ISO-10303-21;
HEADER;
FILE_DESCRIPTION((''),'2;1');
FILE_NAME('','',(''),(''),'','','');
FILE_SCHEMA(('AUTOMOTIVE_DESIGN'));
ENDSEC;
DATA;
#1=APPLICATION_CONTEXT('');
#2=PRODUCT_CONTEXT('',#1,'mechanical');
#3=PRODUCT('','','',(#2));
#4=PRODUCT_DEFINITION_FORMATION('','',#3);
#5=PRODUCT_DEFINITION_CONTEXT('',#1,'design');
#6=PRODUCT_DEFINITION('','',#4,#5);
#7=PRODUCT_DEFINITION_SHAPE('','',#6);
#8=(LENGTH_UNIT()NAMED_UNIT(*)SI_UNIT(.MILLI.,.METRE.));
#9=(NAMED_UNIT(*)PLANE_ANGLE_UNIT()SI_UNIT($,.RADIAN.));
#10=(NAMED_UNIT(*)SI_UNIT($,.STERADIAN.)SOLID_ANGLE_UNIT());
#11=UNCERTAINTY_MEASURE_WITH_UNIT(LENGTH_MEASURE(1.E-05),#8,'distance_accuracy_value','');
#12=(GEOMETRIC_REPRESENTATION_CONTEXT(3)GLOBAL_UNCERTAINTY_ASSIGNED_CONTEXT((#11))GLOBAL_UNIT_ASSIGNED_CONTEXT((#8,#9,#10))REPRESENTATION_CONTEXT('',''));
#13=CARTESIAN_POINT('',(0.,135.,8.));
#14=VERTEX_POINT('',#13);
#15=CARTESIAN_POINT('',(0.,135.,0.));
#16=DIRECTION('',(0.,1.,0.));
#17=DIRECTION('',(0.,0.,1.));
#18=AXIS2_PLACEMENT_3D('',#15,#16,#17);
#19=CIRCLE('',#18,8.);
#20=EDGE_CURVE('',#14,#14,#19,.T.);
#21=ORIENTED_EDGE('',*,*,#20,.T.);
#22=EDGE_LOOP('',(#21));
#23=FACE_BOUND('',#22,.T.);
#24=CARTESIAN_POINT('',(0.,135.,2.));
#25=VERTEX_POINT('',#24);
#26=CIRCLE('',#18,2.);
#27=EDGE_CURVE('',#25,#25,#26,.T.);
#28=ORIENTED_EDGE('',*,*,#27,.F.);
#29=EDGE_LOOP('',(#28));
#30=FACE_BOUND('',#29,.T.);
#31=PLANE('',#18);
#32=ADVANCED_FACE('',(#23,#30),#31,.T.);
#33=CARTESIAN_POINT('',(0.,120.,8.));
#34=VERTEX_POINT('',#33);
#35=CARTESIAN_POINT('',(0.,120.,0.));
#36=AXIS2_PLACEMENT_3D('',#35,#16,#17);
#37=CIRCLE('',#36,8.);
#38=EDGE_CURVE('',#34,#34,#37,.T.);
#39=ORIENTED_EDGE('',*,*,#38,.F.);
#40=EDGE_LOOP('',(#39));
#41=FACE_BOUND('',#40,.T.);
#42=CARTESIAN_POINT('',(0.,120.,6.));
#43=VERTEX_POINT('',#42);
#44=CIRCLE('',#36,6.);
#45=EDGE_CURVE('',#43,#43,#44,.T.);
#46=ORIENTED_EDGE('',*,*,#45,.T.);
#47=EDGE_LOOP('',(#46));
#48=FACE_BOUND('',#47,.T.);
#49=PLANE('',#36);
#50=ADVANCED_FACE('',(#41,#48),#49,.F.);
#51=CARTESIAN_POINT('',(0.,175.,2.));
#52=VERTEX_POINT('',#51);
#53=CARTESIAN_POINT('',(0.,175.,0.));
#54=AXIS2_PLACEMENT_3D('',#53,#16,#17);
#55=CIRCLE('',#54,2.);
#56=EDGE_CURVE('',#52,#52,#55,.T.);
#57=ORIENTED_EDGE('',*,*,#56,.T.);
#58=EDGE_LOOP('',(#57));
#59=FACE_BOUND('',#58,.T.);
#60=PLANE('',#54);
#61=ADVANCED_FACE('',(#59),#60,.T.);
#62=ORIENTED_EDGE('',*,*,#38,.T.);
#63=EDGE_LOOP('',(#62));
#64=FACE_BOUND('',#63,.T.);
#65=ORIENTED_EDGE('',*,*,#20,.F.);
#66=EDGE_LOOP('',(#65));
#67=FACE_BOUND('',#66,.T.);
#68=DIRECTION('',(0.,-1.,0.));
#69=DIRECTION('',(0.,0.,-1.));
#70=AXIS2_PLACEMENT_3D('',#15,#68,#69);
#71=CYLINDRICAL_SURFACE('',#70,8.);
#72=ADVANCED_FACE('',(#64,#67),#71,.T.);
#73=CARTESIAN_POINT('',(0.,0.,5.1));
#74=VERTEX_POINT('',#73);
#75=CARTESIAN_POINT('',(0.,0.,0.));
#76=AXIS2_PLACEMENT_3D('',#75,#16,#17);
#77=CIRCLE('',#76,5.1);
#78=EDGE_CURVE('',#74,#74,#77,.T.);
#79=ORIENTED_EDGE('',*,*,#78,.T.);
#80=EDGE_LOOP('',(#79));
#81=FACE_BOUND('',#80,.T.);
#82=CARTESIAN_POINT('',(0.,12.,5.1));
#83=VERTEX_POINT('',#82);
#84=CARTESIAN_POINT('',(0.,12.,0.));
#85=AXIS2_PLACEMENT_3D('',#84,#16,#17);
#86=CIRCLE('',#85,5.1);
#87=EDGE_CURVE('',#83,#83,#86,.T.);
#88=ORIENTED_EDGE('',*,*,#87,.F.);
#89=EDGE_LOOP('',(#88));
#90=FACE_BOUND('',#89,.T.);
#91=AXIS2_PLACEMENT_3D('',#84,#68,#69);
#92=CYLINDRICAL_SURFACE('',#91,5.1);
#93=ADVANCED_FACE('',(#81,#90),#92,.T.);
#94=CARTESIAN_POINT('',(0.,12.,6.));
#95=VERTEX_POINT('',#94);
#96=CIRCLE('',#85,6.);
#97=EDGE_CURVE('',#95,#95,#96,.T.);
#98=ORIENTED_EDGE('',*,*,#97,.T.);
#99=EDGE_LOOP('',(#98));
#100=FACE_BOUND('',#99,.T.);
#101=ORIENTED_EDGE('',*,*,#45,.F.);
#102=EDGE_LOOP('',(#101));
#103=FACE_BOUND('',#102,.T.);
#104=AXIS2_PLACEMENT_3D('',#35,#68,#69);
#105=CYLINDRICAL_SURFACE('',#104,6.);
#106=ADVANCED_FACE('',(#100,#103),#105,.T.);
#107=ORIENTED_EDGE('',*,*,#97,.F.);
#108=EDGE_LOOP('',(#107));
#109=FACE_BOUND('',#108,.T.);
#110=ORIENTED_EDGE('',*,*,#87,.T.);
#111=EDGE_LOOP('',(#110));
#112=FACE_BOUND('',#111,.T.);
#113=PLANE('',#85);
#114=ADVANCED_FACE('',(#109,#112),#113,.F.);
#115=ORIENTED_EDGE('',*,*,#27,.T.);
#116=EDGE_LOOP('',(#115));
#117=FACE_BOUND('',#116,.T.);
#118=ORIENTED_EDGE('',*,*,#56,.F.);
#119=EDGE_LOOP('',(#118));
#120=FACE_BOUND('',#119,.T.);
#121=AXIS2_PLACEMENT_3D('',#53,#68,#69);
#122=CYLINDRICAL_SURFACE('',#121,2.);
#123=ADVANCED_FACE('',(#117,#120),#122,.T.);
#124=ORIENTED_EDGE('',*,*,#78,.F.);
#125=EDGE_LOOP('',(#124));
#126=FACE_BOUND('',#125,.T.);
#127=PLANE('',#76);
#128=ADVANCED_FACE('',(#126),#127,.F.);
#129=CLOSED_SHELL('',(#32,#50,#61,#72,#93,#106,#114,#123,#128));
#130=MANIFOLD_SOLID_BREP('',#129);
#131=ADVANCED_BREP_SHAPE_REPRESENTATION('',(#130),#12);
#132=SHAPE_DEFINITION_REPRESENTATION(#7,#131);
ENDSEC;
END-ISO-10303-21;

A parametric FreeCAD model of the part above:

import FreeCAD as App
import Part
import Sketcher
from FreeCAD import Vector
Q = App.Units.Quantity

doc = App.newDocument("Part")
params = doc.addObject("Spreadsheet::Sheet", "Params")
for row, (alias, value) in enumerate([
    ("sketch1_diameter", "10.2 mm"),
    ("pad1_length", "12 mm"),
    ("sketch2_diameter", "12 mm"),
    ("pad2_length", "108 mm"),
    ("sketch3_diameter", "16 mm"),
    ("pad3_length", "15 mm"),
    ("sketch4_diameter", "4 mm"),
    ("pad4_length", "40 mm"),
], start=1):
    params.set(f"A{row}", alias)
    params.set(f"B{row}", "=" + value)
    params.setAlias(f"B{row}", alias)

body = doc.addObject("PartDesign::Body", "Body")

sketch1 = body.newObject("Sketcher::SketchObject", "Sketch")
sketch1.AttachmentSupport = (doc.getObject("XZ_Plane"), [""])
sketch1.MapMode = "FlatFace"
sketch1.addGeometry(Part.Circle(Vector(0, 0, 0), Vector(0, 0, 1), 5), False)
sketch1.addConstraint([
    Sketcher.Constraint("Coincident", 0, 3, -1, 1),
    Sketcher.Constraint("Diameter", 0, Q("10.2 mm")),
])
sketch1.setExpression("Constraints[1]", "Params.sketch1_diameter")
pad1 = body.newObject("PartDesign::Pad", "Pad")
pad1.Profile = sketch1
pad1.setExpression("Length", "Params.pad1_length")
pad1.Reversed = True

sketch2 = body.newObject("Sketcher::SketchObject", "Sketch001")
sketch2.AttachmentSupport = (doc.getObject("XZ_Plane"), [""])
sketch2.MapMode = "FlatFace"
sketch2.AttachmentOffset = App.Placement(Vector(0, 0, -12), App.Rotation())
sketch2.addGeometry(Part.Circle(Vector(0, 0, 0), Vector(0, 0, 1), 6), False)
sketch2.addConstraint([
    Sketcher.Constraint("Coincident", 0, 3, -1, 1),
    Sketcher.Constraint("Diameter", 0, Q("12 mm")),
])
sketch2.setExpression("Constraints[1]", "Params.sketch2_diameter")
pad2 = body.newObject("PartDesign::Pad", "Pad001")
pad2.Profile = sketch2
pad2.setExpression("Length", "Params.pad2_length")
pad2.Reversed = True

sketch3 = body.newObject("Sketcher::SketchObject", "Sketch002")
sketch3.AttachmentSupport = (doc.getObject("XZ_Plane"), [""])
sketch3.MapMode = "FlatFace"
sketch3.AttachmentOffset = App.Placement(Vector(0, 0, -120), App.Rotation())
sketch3.addGeometry(Part.Circle(Vector(0, 0, 0), Vector(0, 0, 1), 8), False)
sketch3.addConstraint([
    Sketcher.Constraint("Coincident", 0, 3, -1, 1),
    Sketcher.Constraint("Diameter", 0, Q("16 mm")),
])
sketch3.setExpression("Constraints[1]", "Params.sketch3_diameter")
pad3 = body.newObject("PartDesign::Pad", "Pad002")
pad3.Profile = sketch3
pad3.setExpression("Length", "Params.pad3_length")
pad3.Reversed = True

sketch4 = body.newObject("Sketcher::SketchObject", "Sketch003")
sketch4.AttachmentSupport = (doc.getObject("XZ_Plane"), [""])
sketch4.MapMode = "FlatFace"
sketch4.AttachmentOffset = App.Placement(Vector(0, 0, -135), App.Rotation())
sketch4.addGeometry(Part.Circle(Vector(0, 0, 0), Vector(0, 0, 1), 2), False)
sketch4.addConstraint([
    Sketcher.Constraint("Coincident", 0, 3, -1, 1),
    Sketcher.Constraint("Diameter", 0, Q("4 mm")),
])
sketch4.setExpression("Constraints[1]", "Params.sketch4_diameter")
pad4 = body.newObject("PartDesign::Pad", "Pad003")
pad4.Profile = sketch4
pad4.setExpression("Length", "Params.pad4_length")
pad4.Reversed = True

doc.recompute()
